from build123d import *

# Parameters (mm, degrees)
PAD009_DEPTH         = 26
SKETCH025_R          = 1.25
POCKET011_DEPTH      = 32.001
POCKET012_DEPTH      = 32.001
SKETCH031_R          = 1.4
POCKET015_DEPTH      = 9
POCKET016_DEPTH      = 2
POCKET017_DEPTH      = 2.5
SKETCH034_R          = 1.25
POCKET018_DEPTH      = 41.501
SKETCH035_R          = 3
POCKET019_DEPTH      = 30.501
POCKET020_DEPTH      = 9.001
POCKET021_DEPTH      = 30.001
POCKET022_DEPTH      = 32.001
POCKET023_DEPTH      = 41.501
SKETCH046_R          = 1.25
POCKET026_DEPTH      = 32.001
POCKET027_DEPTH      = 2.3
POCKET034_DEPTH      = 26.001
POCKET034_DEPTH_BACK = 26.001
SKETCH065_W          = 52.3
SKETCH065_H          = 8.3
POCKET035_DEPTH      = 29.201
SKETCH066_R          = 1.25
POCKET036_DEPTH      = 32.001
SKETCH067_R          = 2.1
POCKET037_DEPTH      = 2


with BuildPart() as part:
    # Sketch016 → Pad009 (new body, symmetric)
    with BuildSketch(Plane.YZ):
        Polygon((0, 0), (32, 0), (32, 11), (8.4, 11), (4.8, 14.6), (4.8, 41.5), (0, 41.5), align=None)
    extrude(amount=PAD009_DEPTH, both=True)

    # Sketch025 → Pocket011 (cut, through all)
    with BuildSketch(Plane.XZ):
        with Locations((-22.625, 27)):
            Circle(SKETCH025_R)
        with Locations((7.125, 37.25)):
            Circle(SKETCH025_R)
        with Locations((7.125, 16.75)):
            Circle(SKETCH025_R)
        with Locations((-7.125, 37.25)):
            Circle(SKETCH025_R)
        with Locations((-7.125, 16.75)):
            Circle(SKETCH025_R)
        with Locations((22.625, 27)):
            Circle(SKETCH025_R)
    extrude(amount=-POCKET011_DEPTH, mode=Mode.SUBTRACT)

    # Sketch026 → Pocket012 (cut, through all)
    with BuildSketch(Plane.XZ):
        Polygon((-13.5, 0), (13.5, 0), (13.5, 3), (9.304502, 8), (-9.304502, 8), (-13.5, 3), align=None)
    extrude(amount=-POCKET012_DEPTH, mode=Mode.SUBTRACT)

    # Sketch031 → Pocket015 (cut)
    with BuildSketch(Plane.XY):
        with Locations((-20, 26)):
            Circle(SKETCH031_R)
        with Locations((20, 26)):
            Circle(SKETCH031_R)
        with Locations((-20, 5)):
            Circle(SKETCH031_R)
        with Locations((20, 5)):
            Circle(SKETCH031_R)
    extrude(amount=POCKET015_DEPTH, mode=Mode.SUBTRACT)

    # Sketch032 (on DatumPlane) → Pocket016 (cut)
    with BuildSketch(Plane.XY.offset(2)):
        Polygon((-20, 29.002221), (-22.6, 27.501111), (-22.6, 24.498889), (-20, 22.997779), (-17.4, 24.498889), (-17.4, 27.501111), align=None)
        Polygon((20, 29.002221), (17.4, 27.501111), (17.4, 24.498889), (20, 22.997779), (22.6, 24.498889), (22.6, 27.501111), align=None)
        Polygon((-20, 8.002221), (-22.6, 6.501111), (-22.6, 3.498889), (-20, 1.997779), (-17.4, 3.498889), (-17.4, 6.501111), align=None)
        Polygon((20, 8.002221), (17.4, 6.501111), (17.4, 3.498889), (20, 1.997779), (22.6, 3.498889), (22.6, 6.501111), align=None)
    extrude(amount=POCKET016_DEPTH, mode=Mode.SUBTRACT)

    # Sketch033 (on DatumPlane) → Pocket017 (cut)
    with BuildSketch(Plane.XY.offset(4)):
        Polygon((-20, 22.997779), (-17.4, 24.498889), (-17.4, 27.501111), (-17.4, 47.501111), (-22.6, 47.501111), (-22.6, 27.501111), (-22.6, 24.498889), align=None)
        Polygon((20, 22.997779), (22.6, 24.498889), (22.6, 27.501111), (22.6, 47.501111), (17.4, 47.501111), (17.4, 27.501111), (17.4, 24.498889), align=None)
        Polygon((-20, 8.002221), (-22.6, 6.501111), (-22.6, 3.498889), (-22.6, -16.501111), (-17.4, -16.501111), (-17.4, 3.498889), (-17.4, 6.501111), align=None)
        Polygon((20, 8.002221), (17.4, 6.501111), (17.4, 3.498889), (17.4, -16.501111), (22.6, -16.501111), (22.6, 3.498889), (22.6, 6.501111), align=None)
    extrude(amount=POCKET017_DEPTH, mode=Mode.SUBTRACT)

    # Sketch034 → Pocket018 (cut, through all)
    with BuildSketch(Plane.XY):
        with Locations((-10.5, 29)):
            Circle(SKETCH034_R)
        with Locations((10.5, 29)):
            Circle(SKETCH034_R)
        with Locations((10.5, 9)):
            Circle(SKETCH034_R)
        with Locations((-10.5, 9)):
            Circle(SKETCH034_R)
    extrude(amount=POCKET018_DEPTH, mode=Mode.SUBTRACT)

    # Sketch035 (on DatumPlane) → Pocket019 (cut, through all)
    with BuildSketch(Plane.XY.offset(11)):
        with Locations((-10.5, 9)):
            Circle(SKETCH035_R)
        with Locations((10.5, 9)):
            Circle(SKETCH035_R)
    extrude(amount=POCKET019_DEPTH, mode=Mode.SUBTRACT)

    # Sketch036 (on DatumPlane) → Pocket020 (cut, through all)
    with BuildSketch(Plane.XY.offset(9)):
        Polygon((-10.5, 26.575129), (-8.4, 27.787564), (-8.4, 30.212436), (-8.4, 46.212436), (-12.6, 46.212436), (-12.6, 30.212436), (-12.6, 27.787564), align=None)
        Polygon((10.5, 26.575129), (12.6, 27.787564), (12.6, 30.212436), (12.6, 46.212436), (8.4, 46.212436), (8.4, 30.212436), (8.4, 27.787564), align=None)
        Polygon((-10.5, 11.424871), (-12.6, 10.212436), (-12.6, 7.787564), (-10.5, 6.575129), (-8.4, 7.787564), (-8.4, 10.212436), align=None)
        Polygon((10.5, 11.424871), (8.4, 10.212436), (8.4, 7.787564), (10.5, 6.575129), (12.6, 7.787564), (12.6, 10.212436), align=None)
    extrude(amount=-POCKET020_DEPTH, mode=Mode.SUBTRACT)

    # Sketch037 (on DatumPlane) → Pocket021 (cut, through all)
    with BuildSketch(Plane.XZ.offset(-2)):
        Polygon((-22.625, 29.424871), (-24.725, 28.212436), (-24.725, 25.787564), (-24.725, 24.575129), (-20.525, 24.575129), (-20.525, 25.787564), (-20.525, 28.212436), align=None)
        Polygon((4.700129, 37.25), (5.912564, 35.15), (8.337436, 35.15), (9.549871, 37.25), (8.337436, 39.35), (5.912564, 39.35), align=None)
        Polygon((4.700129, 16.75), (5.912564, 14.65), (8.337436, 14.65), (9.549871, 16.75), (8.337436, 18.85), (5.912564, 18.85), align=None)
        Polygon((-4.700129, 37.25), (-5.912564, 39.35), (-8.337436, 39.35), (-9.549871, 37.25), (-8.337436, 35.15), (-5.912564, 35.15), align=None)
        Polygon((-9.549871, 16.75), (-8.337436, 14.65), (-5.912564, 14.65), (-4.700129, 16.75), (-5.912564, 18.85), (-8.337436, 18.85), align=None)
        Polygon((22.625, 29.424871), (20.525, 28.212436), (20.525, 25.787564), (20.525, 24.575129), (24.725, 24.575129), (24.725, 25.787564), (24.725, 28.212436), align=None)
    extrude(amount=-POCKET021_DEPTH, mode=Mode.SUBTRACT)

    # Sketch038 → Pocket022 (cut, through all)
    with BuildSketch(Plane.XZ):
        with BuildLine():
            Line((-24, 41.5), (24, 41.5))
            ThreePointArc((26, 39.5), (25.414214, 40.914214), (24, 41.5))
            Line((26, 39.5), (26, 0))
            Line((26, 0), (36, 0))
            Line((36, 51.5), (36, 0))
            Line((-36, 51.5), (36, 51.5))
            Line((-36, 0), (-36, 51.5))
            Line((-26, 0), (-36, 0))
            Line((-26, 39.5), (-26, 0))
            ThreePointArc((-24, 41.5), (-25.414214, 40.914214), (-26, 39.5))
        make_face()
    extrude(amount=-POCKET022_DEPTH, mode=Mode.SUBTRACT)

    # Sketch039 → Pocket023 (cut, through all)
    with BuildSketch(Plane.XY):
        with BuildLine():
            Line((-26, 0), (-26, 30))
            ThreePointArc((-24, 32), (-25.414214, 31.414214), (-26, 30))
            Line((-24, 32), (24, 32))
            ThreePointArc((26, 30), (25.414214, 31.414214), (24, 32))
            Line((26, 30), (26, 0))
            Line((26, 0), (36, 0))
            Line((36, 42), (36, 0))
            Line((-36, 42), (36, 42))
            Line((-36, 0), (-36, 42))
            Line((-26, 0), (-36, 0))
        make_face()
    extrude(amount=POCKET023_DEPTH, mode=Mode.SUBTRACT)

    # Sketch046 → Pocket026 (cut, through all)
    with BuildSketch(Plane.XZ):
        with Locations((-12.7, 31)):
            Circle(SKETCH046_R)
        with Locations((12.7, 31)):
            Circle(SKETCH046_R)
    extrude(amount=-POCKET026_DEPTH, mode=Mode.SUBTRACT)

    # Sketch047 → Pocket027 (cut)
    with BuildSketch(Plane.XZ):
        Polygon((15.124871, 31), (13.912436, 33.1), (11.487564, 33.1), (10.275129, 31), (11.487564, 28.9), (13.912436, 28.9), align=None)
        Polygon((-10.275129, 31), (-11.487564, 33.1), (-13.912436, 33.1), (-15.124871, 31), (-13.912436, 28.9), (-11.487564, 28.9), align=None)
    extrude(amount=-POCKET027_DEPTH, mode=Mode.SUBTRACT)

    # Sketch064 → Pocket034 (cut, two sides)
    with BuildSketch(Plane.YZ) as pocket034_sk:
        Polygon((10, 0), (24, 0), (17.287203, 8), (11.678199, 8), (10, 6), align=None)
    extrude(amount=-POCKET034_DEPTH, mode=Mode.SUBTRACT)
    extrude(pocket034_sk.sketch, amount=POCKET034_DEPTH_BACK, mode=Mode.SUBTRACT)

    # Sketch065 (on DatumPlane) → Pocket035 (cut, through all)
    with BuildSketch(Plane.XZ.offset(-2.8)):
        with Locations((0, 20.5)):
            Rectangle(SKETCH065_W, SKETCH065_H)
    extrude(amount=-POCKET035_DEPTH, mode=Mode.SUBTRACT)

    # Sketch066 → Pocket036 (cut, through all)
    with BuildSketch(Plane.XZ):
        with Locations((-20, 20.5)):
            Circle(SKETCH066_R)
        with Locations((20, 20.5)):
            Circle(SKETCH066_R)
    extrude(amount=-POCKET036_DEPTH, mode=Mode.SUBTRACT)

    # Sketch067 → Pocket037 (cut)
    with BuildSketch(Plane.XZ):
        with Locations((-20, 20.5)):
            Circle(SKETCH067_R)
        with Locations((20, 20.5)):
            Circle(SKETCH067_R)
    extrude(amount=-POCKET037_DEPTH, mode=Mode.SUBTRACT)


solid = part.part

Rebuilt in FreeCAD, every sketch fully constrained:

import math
import FreeCAD as App
import Part
import Sketcher

V = App.Vector
Q = App.Units.Quantity


def add_polygon(sketch, points):
    """Adds a closed chain of lines whose ends are joined by coincident constraints."""
    first, n = sketch.GeometryCount, len(points)
    for a, b in zip(points, points[1:] + points[:1]):
        sketch.addGeometry(Part.LineSegment(App.Vector(*a, 0), App.Vector(*b, 0)), False)
    for i in range(n):
        sketch.addConstraint(Sketcher.Constraint("Coincident", first + i, 2, first + (i + 1) % n, 1))

doc = App.newDocument("Part")
body = doc.addObject("PartDesign::Body", "Body")

# Sketch on YZ plane
sketch1 = body.newObject("Sketcher::SketchObject", "Sketch")
sketch1.AttachmentSupport = (doc.getObject("YZ_Plane"), [""])
sketch1.MapMode = "FlatFace"
add_polygon(sketch1, [(0, 0), (32, 0), (32, 11), (8.4, 11), (4.8, 14.6), (4.8, 41.5), (0, 41.5)])  # lines 0-6
sketch1.addConstraint([
    Sketcher.Constraint("Horizontal", 0),
    Sketcher.Constraint("Vertical", 1),
    Sketcher.Constraint("Horizontal", 2),
    Sketcher.Constraint("Vertical", 4),
    Sketcher.Constraint("Horizontal", 5),
    Sketcher.Constraint("Vertical", 6),
    Sketcher.Constraint("Coincident", 6, 2, -1, 1),
    Sketcher.Constraint("DistanceX", 0, 1, 0, 2, Q("32 mm")),
    Sketcher.Constraint("DistanceY", 1, 1, 1, 2, Q("11 mm")),
    Sketcher.Constraint("Angle", 3, Q("135 deg")),
    Sketcher.Constraint("DistanceX", 2, 2, 2, 1, Q("23.6 mm")),
    Sketcher.Constraint("DistanceX", 5, 2, 5, 1, Q("4.8 mm")),
    Sketcher.Constraint("DistanceY", 4, 1, 4, 2, Q("26.9 mm")),
])
pad1 = body.newObject("PartDesign::Pad", "Pad")
pad1.Profile = sketch1
pad1.Length = 52
pad1.Midplane = True

# Sketch on XZ plane
sketch2 = body.newObject("Sketcher::SketchObject", "Sketch001")
sketch2.AttachmentSupport = (doc.getObject("XZ_Plane"), [""])
sketch2.MapMode = "FlatFace"
sketch2.addGeometry([
    Part.Circle(V(-22.6, 27, 0), V(0, 0, 1), 1.2),  # 0
    Part.Circle(V(7.1, 37.2, 0), V(0, 0, 1), 1.2),  # 1
    Part.Circle(V(7.1, 16.8, 0), V(0, 0, 1), 1.2),  # 2
    Part.Circle(V(-7.1, 37.2, 0), V(0, 0, 1), 1.2),  # 3
    Part.Circle(V(-7.1, 16.8, 0), V(0, 0, 1), 1.2),  # 4
    Part.Circle(V(22.6, 27, 0), V(0, 0, 1), 1.2),  # 5
], False)
sketch2.addConstraint([
    Sketcher.Constraint("Equal", 0, 1),
    Sketcher.Constraint("Equal", 1, 2),
    Sketcher.Constraint("Equal", 2, 3),
    Sketcher.Constraint("Equal", 3, 4),
    Sketcher.Constraint("Equal", 4, 5),
    Sketcher.Constraint("Symmetric", 1, 3, 3, 3, -2),
    Sketcher.Constraint("Symmetric", 2, 3, 4, 3, -2),
    Sketcher.Constraint("Symmetric", 0, 3, 5, 3, -2),
    Sketcher.Constraint("Vertical", 1, 3, 2, 3),
    Sketcher.Constraint("Diameter", 0, Q("2.5 mm")),
    Sketcher.Constraint("DistanceY", -1, 1, 0, 3, Q("27 mm")),
    Sketcher.Constraint("DistanceY", 2, 3, 1, 3, Q("20.5 mm")),
    Sketcher.Constraint("DistanceX", 0, 3, 3, 3, Q("15.5 mm")),
    Sketcher.Constraint("DistanceY", -1, 1, 1, 3, Q("37.25 mm")),
    Sketcher.Constraint("DistanceX", 0, 3, 1, 3, Q("29.75 mm")),
])
pocket1 = body.newObject("PartDesign::Pocket", "Pocket")
pocket1.Profile = sketch2
pocket1.Type = "ThroughAll"

# Sketch on XZ plane
sketch3 = body.newObject("Sketcher::SketchObject", "Sketch002")
sketch3.AttachmentSupport = (doc.getObject("XZ_Plane"), [""])
sketch3.MapMode = "FlatFace"
add_polygon(sketch3, [(-13.5, 0), (13.5, 0), (13.5, 3), (9.3, 8), (-9.3, 8), (-13.5, 3)])  # lines 0-5
sketch3.addConstraint([
    Sketcher.Constraint("Horizontal", 0),
    Sketcher.Constraint("Vertical", 1),
    Sketcher.Constraint("Horizontal", 3),
    Sketcher.Constraint("Vertical", 5),
    Sketcher.Constraint("Symmetric", 0, 2, 5, 2, -1, 1),
    Sketcher.Constraint("Horizontal", 1, 2, 4, 2),
    Sketcher.Constraint("Equal", 2, 4),
    Sketcher.Constraint("DistanceX", 0, 1, 0, 2, Q("27 mm")),
    Sketcher.Constraint("DistanceY", 1, 1, 1, 2, Q("3 mm")),
    Sketcher.Constraint("Angle", 2, Q("129.999999 deg")),
    Sketcher.Constraint("DistanceY", -1, 1, 2, 2, Q("8 mm")),
])
pocket2 = body.newObject("PartDesign::Pocket", "Pocket001")
pocket2.Profile = sketch3
pocket2.Type = "ThroughAll"

# Sketch on XY plane
sketch4 = body.newObject("Sketcher::SketchObject", "Sketch003")
sketch4.AttachmentSupport = (doc.getObject("XY_Plane"), [""])
sketch4.MapMode = "FlatFace"
sketch4.addGeometry([
    Part.Circle(V(-20, 26, 0), V(0, 0, 1), 1.4),
    Part.Circle(V(20, 26, 0), V(0, 0, 1), 1.4),
    Part.Circle(V(-20, 5, 0), V(0, 0, 1), 1.4),
    Part.Circle(V(20, 5, 0), V(0, 0, 1), 1.4),
], False)
sketch4.addConstraint([
    Sketcher.Constraint("Equal", 0, 1),
    Sketcher.Constraint("Equal", 1, 2),
    Sketcher.Constraint("Equal", 2, 3),
    Sketcher.Constraint("Symmetric", 0, 3, 1, 3, -2),
    Sketcher.Constraint("Symmetric", 2, 3, 3, 3, -2),
    Sketcher.Constraint("Vertical", 0, 3, 2, 3),
    Sketcher.Constraint("Diameter", 0, Q("2.8 mm")),
    Sketcher.Constraint("DistanceX", 0, 3, -1, 1, Q("20 mm")),
    Sketcher.Constraint("DistanceY", -1, 1, 0, 3, Q("26 mm")),
    Sketcher.Constraint("DistanceY", -1, 1, 2, 3, Q("5 mm")),
])
pocket3 = body.newObject("PartDesign::Pocket", "Pocket002")
pocket3.Profile = sketch4
pocket3.Length = 9
pocket3.Reversed = True

# Sketch on XY plane
sketch5 = body.newObject("Sketcher::SketchObject", "Sketch004")
sketch5.AttachmentSupport = (doc.getObject("XY_Plane"), [""])
sketch5.MapMode = "FlatFace"
sketch5.AttachmentOffset = App.Placement(V(0, 0, 2), App.Rotation())
add_polygon(sketch5, [(-20, 29), (-22.6, 27.5), (-22.6, 24.5), (-20, 23), (-17.4, 24.5), (-17.4, 27.5)])  # lines 0-5
add_polygon(sketch5, [(20, 29), (17.4, 27.5), (17.4, 24.5), (20, 23), (22.6, 24.5), (22.6, 27.5)])  # lines 6-11
add_polygon(sketch5, [(-20, 8), (-22.6, 6.5), (-22.6, 3.5), (-20, 2), (-17.4, 3.5), (-17.4, 6.5)])  # lines 12-17
add_polygon(sketch5, [(20, 8), (17.4, 6.5), (17.4, 3.5), (20, 2), (22.6, 3.5), (22.6, 6.5)])  # lines 18-23
sketch5.addConstraint([
    Sketcher.Constraint("Vertical", 1),
    Sketcher.Constraint("Vertical", 4),
    Sketcher.Constraint("Vertical", 7),
    Sketcher.Constraint("Vertical", 10),
    Sketcher.Constraint("Vertical", 13),
    Sketcher.Constraint("Vertical", 16),
    Sketcher.Constraint("Vertical", 19),
    Sketcher.Constraint("Vertical", 22),
    Sketcher.Constraint("Symmetric", 4, 2, 6, 2, -2),
    Sketcher.Constraint("Symmetric", 2, 2, 8, 2, -2),
    Sketcher.Constraint("Symmetric", 1, 2, 9, 2, -2),
    Sketcher.Constraint("Symmetric", 5, 2, 11, 2, -2),
    Sketcher.Constraint("Symmetric", 16, 2, 18, 2, -2),
    Sketcher.Constraint("Symmetric", 14, 2, 20, 2, -2),
    Sketcher.Constraint("Symmetric", 13, 2, 21, 2, -2),
    Sketcher.Constraint("Symmetric", 17, 2, 23, 2, -2),
    Sketcher.Constraint("Parallel", 0, 3),
    Sketcher.Constraint("Parallel", 2, 5),
    Sketcher.Constraint("Parallel", 3, 6),
    Sketcher.Constraint("Parallel", 5, 8),
    Sketcher.Constraint("Parallel", 8, 11),
    Sketcher.Constraint("Parallel", 9, 12),
    Sketcher.Constraint("Parallel", 11, 14),
    Sketcher.Constraint("Parallel", 12, 15),
    Sketcher.Constraint("Parallel", 14, 17),
    Sketcher.Constraint("Parallel", 17, 20),
    Sketcher.Constraint("Parallel", 20, 23),
    Sketcher.Constraint("Horizontal", 1, 2, 3, 2),
    Sketcher.Constraint("Horizontal", 0, 2, 4, 2),
    Sketcher.Constraint("Horizontal", 13, 2, 15, 2),
    Sketcher.Constraint("Horizontal", 12, 2, 16, 2),
    Sketcher.Constraint("Vertical", 1, 2, 12, 2),
    Sketcher.Constraint("Vertical", 5, 2, 14, 2),
    Sketcher.Constraint("Equal", 10, 13),
    Sketcher.Constraint("Angle", 0, Q("-150.000012 deg")),
    Sketcher.Constraint("DistanceX", 2, 2, -1, 1, Q("20 mm")),
    Sketcher.Constraint("DistanceY", 12, 2, 0, 2, Q("21 mm")),
    Sketcher.Constraint("DistanceX", 0, 2, -1, 1, Q("22.6 mm")),
    Sketcher.Constraint("DistanceY", 13, 2, 13, 1, Q("3.002222 mm")),
    Sketcher.Constraint("DistanceY", -1, 1, 0, 2, Q("27.501111 mm")),
])
pocket4 = body.newObject("PartDesign::Pocket", "Pocket003")
pocket4.Profile = sketch5
pocket4.Length = 2
pocket4.Reversed = True

# Sketch on XY plane
sketch6 = body.newObject("Sketcher::SketchObject", "Sketch005")
sketch6.AttachmentSupport = (doc.getObject("XY_Plane"), [""])
sketch6.MapMode = "FlatFace"
sketch6.AttachmentOffset = App.Placement(V(0, 0, 4), App.Rotation())
add_polygon(sketch6, [(-20, 23), (-17.4, 24.5), (-17.4, 47.5), (-22.6, 47.5), (-22.6, 24.5)])  # lines 0-4
add_polygon(sketch6, [(20, 23), (22.6, 24.5), (22.6, 47.5), (17.4, 47.5), (17.4, 24.5)])  # lines 5-9
add_polygon(sketch6, [(-20, 8), (-22.6, 6.5), (-22.6, -16.5), (-17.4, -16.5), (-17.4, 6.5)])  # lines 10-14
add_polygon(sketch6, [(20, 8), (17.4, 6.5), (17.4, -16.5), (22.6, -16.5), (22.6, 6.5)])  # lines 15-19
sketch6.addConstraint([
    Sketcher.Constraint("Vertical", 1),
    Sketcher.Constraint("Horizontal", 2),
    Sketcher.Constraint("Vertical", 3),
    Sketcher.Constraint("Vertical", 6),
    Sketcher.Constraint("Horizontal", 7),
    Sketcher.Constraint("Vertical", 8),
    Sketcher.Constraint("Vertical", 11),
    Sketcher.Constraint("Horizontal", 12),
    Sketcher.Constraint("Vertical", 13),
    Sketcher.Constraint("Vertical", 16),
    Sketcher.Constraint("Horizontal", 17),
    Sketcher.Constraint("Vertical", 18),
    Sketcher.Constraint("Symmetric", 3, 2, 5, 2, -2),
    Sketcher.Constraint("Symmetric", 1, 2, 7, 2, -2),
    Sketcher.Constraint("Symmetric", 4, 2, 9, 2, -2),
    Sketcher.Constraint("Symmetric", 13, 2, 15, 2, -2),
    Sketcher.Constraint("Symmetric", 11, 2, 17, 2, -2),
    Sketcher.Constraint("Symmetric", 14, 2, 19, 2, -2),
    Sketcher.Constraint("Parallel", 0, 5),
    Sketcher.Constraint("Parallel", 4, 9),
    Sketcher.Constraint("Parallel", 5, 10),
    Sketcher.Constraint("Parallel", 9, 14),
    Sketcher.Constraint("Parallel", 14, 19),
    Sketcher.Constraint("Horizontal", 0, 2, 3, 2),
    Sketcher.Constraint("Horizontal", 10, 2, 13, 2),
    Sketcher.Constraint("Vertical", 3, 2, 10, 2),
    Sketcher.Constraint("Vertical", 1, 2, 12, 2),
    Sketcher.Constraint("Equal", 8, 11),
    Sketcher.Constraint("Angle", 0, Q("29.999988 deg")),
    Sketcher.Constraint("DistanceX", 2, 2, 2, 1, Q("5.2 mm")),
    Sketcher.Constraint("DistanceX", 4, 2, -1, 1, Q("20 mm")),
    Sketcher.Constraint("DistanceY", 10, 2, 2, 2, Q("41 mm")),
    Sketcher.Constraint("DistanceY", 1, 1, 1, 2, Q("23.002222 mm")),
    Sketcher.Constraint("DistanceY", -1, 1, 0, 2, Q("24.498889 mm")),
])
pocket5 = body.newObject("PartDesign::Pocket", "Pocket004")
pocket5.Profile = sketch6
pocket5.Length = 2.5
pocket5.Reversed = True

# Sketch on XY plane
sketch7 = body.newObject("Sketcher::SketchObject", "Sketch006")
sketch7.AttachmentSupport = (doc.getObject("XY_Plane"), [""])
sketch7.MapMode = "FlatFace"
sketch7.addGeometry([
    Part.Circle(V(-10.5, 29, 0), V(0, 0, 1), 1.2),
    Part.Circle(V(10.5, 29, 0), V(0, 0, 1), 1.2),
    Part.Circle(V(10.5, 9, 0), V(0, 0, 1), 1.2),
    Part.Circle(V(-10.5, 9, 0), V(0, 0, 1), 1.2),
], False)
sketch7.addConstraint([
    Sketcher.Constraint("Equal", 0, 1),
    Sketcher.Constraint("Equal", 1, 2),
    Sketcher.Constraint("Equal", 2, 3),
    Sketcher.Constraint("Symmetric", 0, 3, 1, 3, -2),
    Sketcher.Constraint("Symmetric", 2, 3, 3, 3, -2),
    Sketcher.Constraint("Vertical", 1, 3, 2, 3),
    Sketcher.Constraint("Diameter", 0, Q("2.5 mm")),
    Sketcher.Constraint("DistanceY", -1, 1, 0, 3, Q("29 mm")),
    Sketcher.Constraint("DistanceY", -1, 1, 2, 3, Q("9 mm")),
    Sketcher.Constraint("DistanceX", 0, 3, 1, 3, Q("21 mm")),
])
pocket6 = body.newObject("PartDesign::Pocket", "Pocket005")
pocket6.Profile = sketch7
pocket6.Type = "ThroughAll"
pocket6.Reversed = True

# Sketch on XY plane
sketch8 = body.newObject("Sketcher::SketchObject", "Sketch007")
sketch8.AttachmentSupport = (doc.getObject("XY_Plane"), [""])
sketch8.MapMode = "FlatFace"
sketch8.AttachmentOffset = App.Placement(V(0, 0, 11), App.Rotation())
sketch8.addGeometry([
    Part.Circle(V(-10.5, 9, 0), V(0, 0, 1), 3),
    Part.Circle(V(10.5, 9, 0), V(0, 0, 1), 3),
], False)
sketch8.addConstraint([
    Sketcher.Constraint("Equal", 0, 1),
    Sketcher.Constraint("Symmetric", 0, 3, 1, 3, -2),
    Sketcher.Constraint("Diameter", 0, Q("6 mm")),
    Sketcher.Constraint("DistanceY", -1, 1, 0, 3, Q("9 mm")),
    Sketcher.Constraint("DistanceX", 0, 3, 1, 3, Q("21 mm")),
])
pocket7 = body.newObject("PartDesign::Pocket", "Pocket006")
pocket7.Profile = sketch8
pocket7.Type = "ThroughAll"
pocket7.Reversed = True

# Sketch on XY plane
sketch9 = body.newObject("Sketcher::SketchObject", "Sketch008")
sketch9.AttachmentSupport = (doc.getObject("XY_Plane"), [""])
sketch9.MapMode = "FlatFace"
sketch9.AttachmentOffset = App.Placement(V(0, 0, 9), App.Rotation())
add_polygon(sketch9, [(-10.5, 26.6), (-8.4, 27.8), (-8.4, 46.2), (-12.6, 46.2), (-12.6, 27.8)])  # lines 0-4
add_polygon(sketch9, [(10.5, 26.6), (12.6, 27.8), (12.6, 46.2), (8.4, 46.2), (8.4, 27.8)])  # lines 5-9
add_polygon(sketch9, [(-10.5, 11.4), (-12.6, 10.2), (-12.6, 7.8), (-10.5, 6.6), (-8.4, 7.8), (-8.4, 10.2)])  # lines 10-15
add_polygon(sketch9, [(10.5, 11.4), (8.4, 10.2), (8.4, 7.8), (10.5, 6.6), (12.6, 7.8), (12.6, 10.2)])  # lines 16-21
sketch9.addConstraint([
    Sketcher.Constraint("Vertical", 1),
    Sketcher.Constraint("Horizontal", 2),
    Sketcher.Constraint("Vertical", 3),
    Sketcher.Constraint("Vertical", 6),
    Sketcher.Constraint("Horizontal", 7),
    Sketcher.Constraint("Vertical", 8),
    Sketcher.Constraint("Vertical", 11),
    Sketcher.Constraint("Vertical", 14),
    Sketcher.Constraint("Vertical", 17),
    Sketcher.Constraint("Vertical", 20),
    Sketcher.Constraint("Symmetric", 3, 2, 5, 2, -2),
    Sketcher.Constraint("Symmetric", 1, 2, 7, 2, -2),
    Sketcher.Constraint("Symmetric", 4, 2, 9, 2, -2),
    Sketcher.Constraint("Symmetric", 14, 2, 16, 2, -2),
    Sketcher.Constraint("Symmetric", 12, 2, 18, 2, -2),
    Sketcher.Constraint("Symmetric", 11, 2, 19, 2, -2),
    Sketcher.Constraint("Symmetric", 15, 2, 21, 2, -2),
    Sketcher.Constraint("Parallel", 0, 5),
    Sketcher.Constraint("Parallel", 4, 9),
    Sketcher.Constraint("Parallel", 5, 10),
    Sketcher.Constraint("Parallel", 9, 12),
    Sketcher.Constraint("Parallel", 10, 13),
    Sketcher.Constraint("Parallel", 12, 15),
    Sketcher.Constraint("Parallel", 15, 18),
    Sketcher.Constraint("Parallel", 18, 21),
    Sketcher.Constraint("Horizontal", 0, 2, 3, 2),
    Sketcher.Constraint("Horizontal", 11, 2, 13, 2),
    Sketcher.Constraint("Horizontal", 10, 2, 14, 2),
    Sketcher.Constraint("Vertical", 3, 2, 10, 2),
    Sketcher.Constraint("Vertical", 4, 2, 12, 2),
    Sketcher.Constraint("Angle", 0, Q("29.999988 deg")),
    Sketcher.Constraint("DistanceX", 2, 2, 2, 1, Q("4.2 mm")),
    Sketcher.Constraint("DistanceX", 0, 2, 5, 2, Q("21 mm")),
    Sketcher.Constraint("DistanceY", 11, 2, 3, 2, Q("20 mm")),
    Sketcher.Constraint("DistanceY", 1, 1, 1, 2, Q("18.424872 mm")),
    Sketcher.Constraint("DistanceY", 11, 2, 11, 1, Q("2.424872 mm")),
    Sketcher.Constraint("DistanceY", -1, 1, 4, 2, Q("26.575129 mm")),
])
pocket8 = body.newObject("PartDesign::Pocket", "Pocket007")
pocket8.Profile = sketch9
pocket8.Type = "ThroughAll"

# Sketch on XZ plane
sketch10 = body.newObject("Sketcher::SketchObject", "Sketch009")
sketch10.AttachmentSupport = (doc.getObject("XZ_Plane"), [""])
sketch10.MapMode = "FlatFace"
sketch10.AttachmentOffset = App.Placement(V(0, 0, -2), App.Rotation())
add_polygon(sketch10, [(-22.6, 29.4), (-24.7, 28.2), (-24.7, 24.6), (-20.5, 24.6), (-20.5, 28.2)])  # lines 0-4
add_polygon(sketch10, [(4.7, 37.2), (5.9, 35.1), (8.3, 35.1), (9.5, 37.2), (8.3, 39.4), (5.9, 39.4)])  # lines 5-10
add_polygon(sketch10, [(4.7, 16.8), (5.9, 14.7), (8.3, 14.7), (9.5, 16.8), (8.3, 18.9), (5.9, 18.9)])  # lines 11-16
add_polygon(sketch10, [(-4.7, 37.2), (-5.9, 39.4), (-8.3, 39.4), (-9.5, 37.2), (-8.3, 35.1), (-5.9, 35.1)])  # lines 17-22
add_polygon(sketch10, [(-9.5, 16.8), (-8.3, 14.7), (-5.9, 14.7), (-4.7, 16.8), (-5.9, 18.9), (-8.3, 18.9)])  # lines 23-28
add_polygon(sketch10, [(22.6, 29.4), (20.5, 28.2), (20.5, 24.6), (24.7, 24.6), (24.7, 28.2)])  # lines 29-33
sketch10.addConstraint([
    Sketcher.Constraint("Vertical", 1),
    Sketcher.Constraint("Horizontal", 2),
    Sketcher.Constraint("Vertical", 3),
    Sketcher.Constraint("Horizontal", 6),
    Sketcher.Constraint("Horizontal", 9),
    Sketcher.Constraint("Horizontal", 12),
    Sketcher.Constraint("Horizontal", 15),
    Sketcher.Constraint("Horizontal", 18),
    Sketcher.Constraint("Horizontal", 21),
    Sketcher.Constraint("Horizontal", 24),
    Sketcher.Constraint("Horizontal", 27),
    Sketcher.Constraint("Vertical", 30),
    Sketcher.Constraint("Horizontal", 31),
    Sketcher.Constraint("Vertical", 32),
    Sketcher.Constraint("Symmetric", 9, 2, 17, 2, -2),
    Sketcher.Constraint("Symmetric", 7, 2, 19, 2, -2),
    Sketcher.Constraint("Symmetric", 6, 2, 20, 2, -2),
    Sketcher.Constraint("Symmetric", 10, 2, 22, 2, -2),
    Sketcher.Constraint("Symmetric", 12, 2, 23, 2, -2),
    Sketcher.Constraint("Symmetric", 16, 2, 25, 2, -2),
    Sketcher.Constraint("Symmetric", 15, 2, 26, 2, -2),
    Sketcher.Constraint("Symmetric", 13, 2, 28, 2, -2),
    Sketcher.Constraint("Symmetric", 3, 2, 29, 2, -2),
    Sketcher.Constraint("Symmetric", 1, 2, 31, 2, -2),
    Sketcher.Constraint("Symmetric", 4, 2, 33, 2, -2),
    Sketcher.Constraint("Perpendicular", 0, 5),
    Sketcher.Constraint("Perpendicular", 4, 7),
    Sketcher.Constraint("Parallel", 5, 8),
    Sketcher.Constraint("Parallel", 7, 10),
    Sketcher.Constraint("Parallel", 8, 11),
    Sketcher.Constraint("Parallel", 10, 13),
    Sketcher.Constraint("Parallel", 11, 14),
    Sketcher.Constraint("Parallel", 13, 16),
    Sketcher.Constraint("Parallel", 14, 17),
    Sketcher.Constraint("Parallel", 16, 19),
    Sketcher.Constraint("Parallel", 19, 22),
    Sketcher.Constraint("Parallel", 22, 25),
    Sketcher.Constraint("Parallel", 25, 28),
    Sketcher.Constraint("Perpendicular", 28, 33),
    Sketcher.Constraint("Horizontal", 0, 2, 3, 2),
    Sketcher.Constraint("Horizontal", 7, 2, 10, 2),
    Sketcher.Constraint("Horizontal", 13, 2, 16, 2),
    Sketcher.Constraint("Vertical", 6, 2, 8, 2),
    Sketcher.Constraint("Vertical", 9, 2, 11, 2),
    Sketcher.Constraint("Vertical", 8, 2, 12, 2),
    Sketcher.Constraint("Vertical", 7, 2, 13, 2),
    Sketcher.Constraint("Vertical", 12, 2, 14, 2),
    Sketcher.Constraint("Equal", 4, 5),
    Sketcher.Constraint("Angle", 0, Q("-150.000012 deg")),
    Sketcher.Constraint("DistanceX", 2, 1, 2, 2, Q("4.2 mm")),
    Sketcher.Constraint("DistanceY", 11, 2, 5, 2, Q("20.5 mm")),
    Sketcher.Constraint("DistanceY", -1, 1, 5, 2, Q("35.15 mm")),
    Sketcher.Constraint("DistanceX", 17, 2, 8, 2, Q("14.25 mm")),
    Sketcher.Constraint("DistanceX", 0, 2, -1, 1, Q("24.725 mm")),
    Sketcher.Constraint("DistanceX", 6, 1, 6, 2, Q("2.424872 mm")),
    Sketcher.Constraint("DistanceY", 1, 2, 1, 1, Q("3.637307 mm")),
    Sketcher.Constraint("DistanceY", -1, 1, 1, 2, Q("24.575129 mm")),
])
pocket9 = body.newObject("PartDesign::Pocket", "Pocket008")
pocket9.Profile = sketch10
pocket9.Type = "ThroughAll"

# Sketch on XZ plane
sketch11 = body.newObject("Sketcher::SketchObject", "Sketch010")
sketch11.AttachmentSupport = (doc.getObject("XZ_Plane"), [""])
sketch11.MapMode = "FlatFace"
sketch11.addGeometry([
    Part.LineSegment(V(-24, 41.5, 0), V(24, 41.5, 0)),  # 0
    Part.ArcOfCircle(Part.Circle(V(24, 39.5, 0), V(0, 0, 1), 2), math.radians(0), math.radians(90)),  # 1
    Part.LineSegment(V(26, 39.5, 0), V(26, 0, 0)),  # 2
    Part.LineSegment(V(26, 0, 0), V(36, 0, 0)),  # 3
    Part.LineSegment(V(36, 0, 0), V(36, 51.5, 0)),  # 4
    Part.LineSegment(V(36, 51.5, 0), V(-36, 51.5, 0)),  # 5
    Part.LineSegment(V(-36, 51.5, 0), V(-36, 0, 0)),  # 6
    Part.LineSegment(V(-36, 0, 0), V(-26, 0, 0)),  # 7
    Part.LineSegment(V(-26, 0, 0), V(-26, 39.5, 0)),  # 8
    Part.ArcOfCircle(Part.Circle(V(-24, 39.5, 0), V(0, 0, 1), 2), math.radians(90), math.radians(180)),  # 9
], False)
sketch11.addConstraint([
    Sketcher.Constraint("Tangent", 0, 2, 1, 2),
    Sketcher.Constraint("Tangent", 1, 1, 2, 1),
    Sketcher.Constraint("Coincident", 2, 2, 3, 1),
    Sketcher.Constraint("Coincident", 3, 2, 4, 1),
    Sketcher.Constraint("Coincident", 4, 2, 5, 1),
    Sketcher.Constraint("Coincident", 5, 2, 6, 1),
    Sketcher.Constraint("Coincident", 6, 2, 7, 1),
    Sketcher.Constraint("Coincident", 7, 2, 8, 1),
    Sketcher.Constraint("Tangent", 8, 2, 9, 2),
    Sketcher.Constraint("Tangent", 9, 1, 0, 1),
    Sketcher.Constraint("Horizontal", 0),
    Sketcher.Constraint("Vertical", 2),
    Sketcher.Constraint("Horizontal", 3),
    Sketcher.Constraint("Vertical", 4),
    Sketcher.Constraint("Horizontal", 5),
    Sketcher.Constraint("Vertical", 6),
    Sketcher.Constraint("Horizontal", 7),
    Sketcher.Constraint("Vertical", 8),
    Sketcher.Constraint("Equal", 1, 9),
    Sketcher.Constraint("Symmetric", 3, 2, 6, 2, -1, 1),
    Sketcher.Constraint("Symmetric", 2, 2, 7, 2, -2),
    Sketcher.Constraint("Radius", 1, Q("1.999999 mm")),
    Sketcher.Constraint("DistanceX", 0, 1, 0, 2, Q("48 mm")),
    Sketcher.Constraint("DistanceX", 3, 1, 3, 2, Q("10 mm")),
    Sketcher.Constraint("DistanceY", 2, 2, 2, 1, Q("39.5 mm")),
    Sketcher.Constraint("DistanceY", 4, 1, 4, 2, Q("51.5 mm")),
])
pocket10 = body.newObject("PartDesign::Pocket", "Pocket009")
pocket10.Profile = sketch11
pocket10.Type = "ThroughAll"

# Sketch on XY plane
sketch12 = body.newObject("Sketcher::SketchObject", "Sketch011")
sketch12.AttachmentSupport = (doc.getObject("XY_Plane"), [""])
sketch12.MapMode = "FlatFace"
sketch12.addGeometry([
    Part.LineSegment(V(-26, 0, 0), V(-26, 30, 0)),  # 0
    Part.ArcOfCircle(Part.Circle(V(-24, 30, 0), V(0, 0, 1), 2), math.radians(90), math.radians(180)),  # 1
    Part.LineSegment(V(-24, 32, 0), V(24, 32, 0)),  # 2
    Part.ArcOfCircle(Part.Circle(V(24, 30, 0), V(0, 0, 1), 2), math.radians(0), math.radians(90)),  # 3
    Part.LineSegment(V(26, 30, 0), V(26, 0, 0)),  # 4
    Part.LineSegment(V(26, 0, 0), V(36, 0, 0)),  # 5
    Part.LineSegment(V(36, 0, 0), V(36, 42, 0)),  # 6
    Part.LineSegment(V(36, 42, 0), V(-36, 42, 0)),  # 7
    Part.LineSegment(V(-36, 42, 0), V(-36, 0, 0)),  # 8
    Part.LineSegment(V(-36, 0, 0), V(-26, 0, 0)),  # 9
], False)
sketch12.addConstraint([
    Sketcher.Constraint("Tangent", 0, 2, 1, 2),
    Sketcher.Constraint("Tangent", 1, 1, 2, 1),
    Sketcher.Constraint("Tangent", 2, 2, 3, 2),
    Sketcher.Constraint("Tangent", 3, 1, 4, 1),
    Sketcher.Constraint("Coincident", 4, 2, 5, 1),
    Sketcher.Constraint("Coincident", 5, 2, 6, 1),
    Sketcher.Constraint("Coincident", 6, 2, 7, 1),
    Sketcher.Constraint("Coincident", 7, 2, 8, 1),
    Sketcher.Constraint("Coincident", 8, 2, 9, 1),
    Sketcher.Constraint("Coincident", 9, 2, 0, 1),
    Sketcher.Constraint("Vertical", 0),
    Sketcher.Constraint("Horizontal", 2),
    Sketcher.Constraint("Vertical", 4),
    Sketcher.Constraint("Horizontal", 5),
    Sketcher.Constraint("Vertical", 6),
    Sketcher.Constraint("Horizontal", 7),
    Sketcher.Constraint("Vertical", 8),
    Sketcher.Constraint("Horizontal", 9),
    Sketcher.Constraint("Equal", 1, 3),
    Sketcher.Constraint("Symmetric", 5, 2, 8, 2, -1, 1),
    Sketcher.Constraint("Symmetric", 4, 2, 9, 2, -2),
    Sketcher.Constraint("Radius", 1, Q("1.999999 mm")),
    Sketcher.Constraint("DistanceX", 2, 1, 2, 2, Q("48 mm")),
    Sketcher.Constraint("DistanceX", 5, 1, 5, 2, Q("10 mm")),
    Sketcher.Constraint("DistanceY", 0, 1, 0, 2, Q("30 mm")),
    Sketcher.Constraint("DistanceY", 6, 1, 6, 2, Q("42 mm")),
])
pocket11 = body.newObject("PartDesign::Pocket", "Pocket010")
pocket11.Profile = sketch12
pocket11.Type = "ThroughAll"
pocket11.Reversed = True

# Sketch on XZ plane
sketch13 = body.newObject("Sketcher::SketchObject", "Sketch012")
sketch13.AttachmentSupport = (doc.getObject("XZ_Plane"), [""])
sketch13.MapMode = "FlatFace"
sketch13.addGeometry([
    Part.Circle(V(-12.7, 31, 0), V(0, 0, 1), 1.2),
    Part.Circle(V(12.7, 31, 0), V(0, 0, 1), 1.2),
], False)
sketch13.addConstraint([
    Sketcher.Constraint("Equal", 0, 1),
    Sketcher.Constraint("Symmetric", 0, 3, 1, 3, -2),
    Sketcher.Constraint("Diameter", 0, Q("2.5 mm")),
    Sketcher.Constraint("DistanceY", -1, 1, 0, 3, Q("31 mm")),
    Sketcher.Constraint("DistanceX", 0, 3, -1, 1, Q("12.7 mm")),
])
pocket12 = body.newObject("PartDesign::Pocket", "Pocket011")
pocket12.Profile = sketch13
pocket12.Type = "ThroughAll"

# Sketch on XZ plane
sketch14 = body.newObject("Sketcher::SketchObject", "Sketch013")
sketch14.AttachmentSupport = (doc.getObject("XZ_Plane"), [""])
sketch14.MapMode = "FlatFace"
add_polygon(sketch14, [(15.1, 31), (13.9, 33.1), (11.5, 33.1), (10.3, 31), (11.5, 28.9), (13.9, 28.9)])  # lines 0-5
add_polygon(sketch14, [(-10.3, 31), (-11.5, 33.1), (-13.9, 33.1), (-15.1, 31), (-13.9, 28.9), (-11.5, 28.9)])  # lines 6-11
sketch14.addConstraint([
    Sketcher.Constraint("Horizontal", 1),
    Sketcher.Constraint("Horizontal", 4),
    Sketcher.Constraint("Horizontal", 7),
    Sketcher.Constraint("Horizontal", 10),
    Sketcher.Constraint("Symmetric", 1, 2, 6, 2, -2),
    Sketcher.Constraint("Symmetric", 5, 2, 8, 2, -2),
    Sketcher.Constraint("Symmetric", 4, 2, 9, 2, -2),
    Sketcher.Constraint("Symmetric", 2, 2, 11, 2, -2),
    Sketcher.Constraint("Parallel", 0, 3),
    Sketcher.Constraint("Parallel", 2, 5),
    Sketcher.Constraint("Parallel", 3, 6),
    Sketcher.Constraint("Parallel", 5, 8),
    Sketcher.Constraint("Parallel", 8, 11),
    Sketcher.Constraint("Horizontal", 2, 2, 5, 2),
    Sketcher.Constraint("Vertical", 1, 2, 3, 2),
    Sketcher.Constraint("Angle", 0, Q("119.999988 deg")),
    Sketcher.Constraint("DistanceY", -1, 1, 2, 2, Q("31 mm")),
    Sketcher.Constraint("DistanceY", -1, 1, 0, 2, Q("33.1 mm")),
    Sketcher.Constraint("DistanceX", 6, 2, 0, 2, Q("25.4 mm")),
    Sketcher.Constraint("DistanceX", 1, 2, 1, 1, Q("2.424872 mm")),
])
pocket13 = body.newObject("PartDesign::Pocket", "Pocket012")
pocket13.Profile = sketch14
pocket13.Length = 2.3

# Sketch on YZ plane
sketch15 = body.newObject("Sketcher::SketchObject", "Sketch014")
sketch15.AttachmentSupport = (doc.getObject("YZ_Plane"), [""])
sketch15.MapMode = "FlatFace"
add_polygon(sketch15, [(10, 0), (24, 0), (17.3, 8), (11.7, 8), (10, 6)])  # lines 0-4
sketch15.addConstraint([
    Sketcher.Constraint("Horizontal", 0),
    Sketcher.Constraint("Horizontal", 2),
    Sketcher.Constraint("Vertical", 4),
    Sketcher.Constraint("PointOnObject", 0, 2, -1),
    Sketcher.Constraint("DistanceX", 0, 1, 0, 2, Q("14 mm")),
    Sketcher.Constraint("DistanceY", 4, 2, 4, 1, Q("6 mm")),
    Sketcher.Constraint("Angle", 1, Q("130 deg")),
    Sketcher.Constraint("Angle", 3, Q("-129.999996 deg")),
    Sketcher.Constraint("DistanceX", -1, 1, 0, 2, Q("24 mm")),
    Sketcher.Constraint("DistanceY", -1, 1, 1, 2, Q("8 mm")),
])
pocket14 = body.newObject("PartDesign::Pocket", "Pocket013")
pocket14.Profile = sketch15
pocket14.Type = "ThroughAll"
pocket14.Midplane = True

# Sketch on XZ plane
sketch16 = body.newObject("Sketcher::SketchObject", "Sketch015")
sketch16.AttachmentSupport = (doc.getObject("XZ_Plane"), [""])
sketch16.MapMode = "FlatFace"
sketch16.AttachmentOffset = App.Placement(V(0, 0, -2.8), App.Rotation())
add_polygon(sketch16, [(-26, 25), (-26, 16), (26, 16), (26, 25)])  # lines 0-3
sketch16.addConstraint([
    Sketcher.Constraint("Vertical", 0),
    Sketcher.Constraint("Horizontal", 1),
    Sketcher.Constraint("Vertical", 2),
    Sketcher.Constraint("Horizontal", 3),
    Sketcher.Constraint("DistanceX", 1, 1, 1, 2, Q("52.3 mm")),
    Sketcher.Constraint("DistanceY", 0, 2, 0, 1, Q("8.3 mm")),
    Sketcher.Constraint("DistanceX", 0, 2, -1, 1, Q("26.15 mm")),
    Sketcher.Constraint("DistanceY", -1, 1, 0, 2, Q("16.35 mm")),
])
pocket15 = body.newObject("PartDesign::Pocket", "Pocket014")
pocket15.Profile = sketch16
pocket15.Type = "ThroughAll"

# Sketch on XZ plane
sketch17 = body.newObject("Sketcher::SketchObject", "Sketch016")
sketch17.AttachmentSupport = (doc.getObject("XZ_Plane"), [""])
sketch17.MapMode = "FlatFace"
sketch17.addGeometry([
    Part.Circle(V(-20, 20.5, 0), V(0, 0, 1), 1.2),
    Part.Circle(V(20, 20.5, 0), V(0, 0, 1), 1.2),
], False)
sketch17.addConstraint([
    Sketcher.Constraint("Equal", 0, 1),
    Sketcher.Constraint("Symmetric", 0, 3, 1, 3, -2),
    Sketcher.Constraint("Diameter", 0, Q("2.5 mm")),
    Sketcher.Constraint("DistanceX", 0, 3, -1, 1, Q("20 mm")),
    Sketcher.Constraint("DistanceY", -1, 1, 0, 3, Q("20.5 mm")),
])
pocket16 = body.newObject("PartDesign::Pocket", "Pocket015")
pocket16.Profile = sketch17
pocket16.Type = "ThroughAll"

# Sketch on XZ plane
sketch18 = body.newObject("Sketcher::SketchObject", "Sketch017")
sketch18.AttachmentSupport = (doc.getObject("XZ_Plane"), [""])
sketch18.MapMode = "FlatFace"
sketch18.addGeometry([
    Part.Circle(V(-20, 20.5, 0), V(0, 0, 1), 2.1),
    Part.Circle(V(20, 20.5, 0), V(0, 0, 1), 2.1),
], False)
sketch18.addConstraint([
    Sketcher.Constraint("Equal", 0, 1),
    Sketcher.Constraint("Symmetric", 0, 3, 1, 3, -2),
    Sketcher.Constraint("Diameter", 0, Q("4.2 mm")),
    Sketcher.Constraint("DistanceX", 0, 3, -1, 1, Q("20 mm")),
    Sketcher.Constraint("DistanceY", -1, 1, 0, 3, Q("20.5 mm")),
])
pocket17 = body.newObject("PartDesign::Pocket", "Pocket016")
pocket17.Profile = sketch18
pocket17.Length = 2

doc.recompute()
